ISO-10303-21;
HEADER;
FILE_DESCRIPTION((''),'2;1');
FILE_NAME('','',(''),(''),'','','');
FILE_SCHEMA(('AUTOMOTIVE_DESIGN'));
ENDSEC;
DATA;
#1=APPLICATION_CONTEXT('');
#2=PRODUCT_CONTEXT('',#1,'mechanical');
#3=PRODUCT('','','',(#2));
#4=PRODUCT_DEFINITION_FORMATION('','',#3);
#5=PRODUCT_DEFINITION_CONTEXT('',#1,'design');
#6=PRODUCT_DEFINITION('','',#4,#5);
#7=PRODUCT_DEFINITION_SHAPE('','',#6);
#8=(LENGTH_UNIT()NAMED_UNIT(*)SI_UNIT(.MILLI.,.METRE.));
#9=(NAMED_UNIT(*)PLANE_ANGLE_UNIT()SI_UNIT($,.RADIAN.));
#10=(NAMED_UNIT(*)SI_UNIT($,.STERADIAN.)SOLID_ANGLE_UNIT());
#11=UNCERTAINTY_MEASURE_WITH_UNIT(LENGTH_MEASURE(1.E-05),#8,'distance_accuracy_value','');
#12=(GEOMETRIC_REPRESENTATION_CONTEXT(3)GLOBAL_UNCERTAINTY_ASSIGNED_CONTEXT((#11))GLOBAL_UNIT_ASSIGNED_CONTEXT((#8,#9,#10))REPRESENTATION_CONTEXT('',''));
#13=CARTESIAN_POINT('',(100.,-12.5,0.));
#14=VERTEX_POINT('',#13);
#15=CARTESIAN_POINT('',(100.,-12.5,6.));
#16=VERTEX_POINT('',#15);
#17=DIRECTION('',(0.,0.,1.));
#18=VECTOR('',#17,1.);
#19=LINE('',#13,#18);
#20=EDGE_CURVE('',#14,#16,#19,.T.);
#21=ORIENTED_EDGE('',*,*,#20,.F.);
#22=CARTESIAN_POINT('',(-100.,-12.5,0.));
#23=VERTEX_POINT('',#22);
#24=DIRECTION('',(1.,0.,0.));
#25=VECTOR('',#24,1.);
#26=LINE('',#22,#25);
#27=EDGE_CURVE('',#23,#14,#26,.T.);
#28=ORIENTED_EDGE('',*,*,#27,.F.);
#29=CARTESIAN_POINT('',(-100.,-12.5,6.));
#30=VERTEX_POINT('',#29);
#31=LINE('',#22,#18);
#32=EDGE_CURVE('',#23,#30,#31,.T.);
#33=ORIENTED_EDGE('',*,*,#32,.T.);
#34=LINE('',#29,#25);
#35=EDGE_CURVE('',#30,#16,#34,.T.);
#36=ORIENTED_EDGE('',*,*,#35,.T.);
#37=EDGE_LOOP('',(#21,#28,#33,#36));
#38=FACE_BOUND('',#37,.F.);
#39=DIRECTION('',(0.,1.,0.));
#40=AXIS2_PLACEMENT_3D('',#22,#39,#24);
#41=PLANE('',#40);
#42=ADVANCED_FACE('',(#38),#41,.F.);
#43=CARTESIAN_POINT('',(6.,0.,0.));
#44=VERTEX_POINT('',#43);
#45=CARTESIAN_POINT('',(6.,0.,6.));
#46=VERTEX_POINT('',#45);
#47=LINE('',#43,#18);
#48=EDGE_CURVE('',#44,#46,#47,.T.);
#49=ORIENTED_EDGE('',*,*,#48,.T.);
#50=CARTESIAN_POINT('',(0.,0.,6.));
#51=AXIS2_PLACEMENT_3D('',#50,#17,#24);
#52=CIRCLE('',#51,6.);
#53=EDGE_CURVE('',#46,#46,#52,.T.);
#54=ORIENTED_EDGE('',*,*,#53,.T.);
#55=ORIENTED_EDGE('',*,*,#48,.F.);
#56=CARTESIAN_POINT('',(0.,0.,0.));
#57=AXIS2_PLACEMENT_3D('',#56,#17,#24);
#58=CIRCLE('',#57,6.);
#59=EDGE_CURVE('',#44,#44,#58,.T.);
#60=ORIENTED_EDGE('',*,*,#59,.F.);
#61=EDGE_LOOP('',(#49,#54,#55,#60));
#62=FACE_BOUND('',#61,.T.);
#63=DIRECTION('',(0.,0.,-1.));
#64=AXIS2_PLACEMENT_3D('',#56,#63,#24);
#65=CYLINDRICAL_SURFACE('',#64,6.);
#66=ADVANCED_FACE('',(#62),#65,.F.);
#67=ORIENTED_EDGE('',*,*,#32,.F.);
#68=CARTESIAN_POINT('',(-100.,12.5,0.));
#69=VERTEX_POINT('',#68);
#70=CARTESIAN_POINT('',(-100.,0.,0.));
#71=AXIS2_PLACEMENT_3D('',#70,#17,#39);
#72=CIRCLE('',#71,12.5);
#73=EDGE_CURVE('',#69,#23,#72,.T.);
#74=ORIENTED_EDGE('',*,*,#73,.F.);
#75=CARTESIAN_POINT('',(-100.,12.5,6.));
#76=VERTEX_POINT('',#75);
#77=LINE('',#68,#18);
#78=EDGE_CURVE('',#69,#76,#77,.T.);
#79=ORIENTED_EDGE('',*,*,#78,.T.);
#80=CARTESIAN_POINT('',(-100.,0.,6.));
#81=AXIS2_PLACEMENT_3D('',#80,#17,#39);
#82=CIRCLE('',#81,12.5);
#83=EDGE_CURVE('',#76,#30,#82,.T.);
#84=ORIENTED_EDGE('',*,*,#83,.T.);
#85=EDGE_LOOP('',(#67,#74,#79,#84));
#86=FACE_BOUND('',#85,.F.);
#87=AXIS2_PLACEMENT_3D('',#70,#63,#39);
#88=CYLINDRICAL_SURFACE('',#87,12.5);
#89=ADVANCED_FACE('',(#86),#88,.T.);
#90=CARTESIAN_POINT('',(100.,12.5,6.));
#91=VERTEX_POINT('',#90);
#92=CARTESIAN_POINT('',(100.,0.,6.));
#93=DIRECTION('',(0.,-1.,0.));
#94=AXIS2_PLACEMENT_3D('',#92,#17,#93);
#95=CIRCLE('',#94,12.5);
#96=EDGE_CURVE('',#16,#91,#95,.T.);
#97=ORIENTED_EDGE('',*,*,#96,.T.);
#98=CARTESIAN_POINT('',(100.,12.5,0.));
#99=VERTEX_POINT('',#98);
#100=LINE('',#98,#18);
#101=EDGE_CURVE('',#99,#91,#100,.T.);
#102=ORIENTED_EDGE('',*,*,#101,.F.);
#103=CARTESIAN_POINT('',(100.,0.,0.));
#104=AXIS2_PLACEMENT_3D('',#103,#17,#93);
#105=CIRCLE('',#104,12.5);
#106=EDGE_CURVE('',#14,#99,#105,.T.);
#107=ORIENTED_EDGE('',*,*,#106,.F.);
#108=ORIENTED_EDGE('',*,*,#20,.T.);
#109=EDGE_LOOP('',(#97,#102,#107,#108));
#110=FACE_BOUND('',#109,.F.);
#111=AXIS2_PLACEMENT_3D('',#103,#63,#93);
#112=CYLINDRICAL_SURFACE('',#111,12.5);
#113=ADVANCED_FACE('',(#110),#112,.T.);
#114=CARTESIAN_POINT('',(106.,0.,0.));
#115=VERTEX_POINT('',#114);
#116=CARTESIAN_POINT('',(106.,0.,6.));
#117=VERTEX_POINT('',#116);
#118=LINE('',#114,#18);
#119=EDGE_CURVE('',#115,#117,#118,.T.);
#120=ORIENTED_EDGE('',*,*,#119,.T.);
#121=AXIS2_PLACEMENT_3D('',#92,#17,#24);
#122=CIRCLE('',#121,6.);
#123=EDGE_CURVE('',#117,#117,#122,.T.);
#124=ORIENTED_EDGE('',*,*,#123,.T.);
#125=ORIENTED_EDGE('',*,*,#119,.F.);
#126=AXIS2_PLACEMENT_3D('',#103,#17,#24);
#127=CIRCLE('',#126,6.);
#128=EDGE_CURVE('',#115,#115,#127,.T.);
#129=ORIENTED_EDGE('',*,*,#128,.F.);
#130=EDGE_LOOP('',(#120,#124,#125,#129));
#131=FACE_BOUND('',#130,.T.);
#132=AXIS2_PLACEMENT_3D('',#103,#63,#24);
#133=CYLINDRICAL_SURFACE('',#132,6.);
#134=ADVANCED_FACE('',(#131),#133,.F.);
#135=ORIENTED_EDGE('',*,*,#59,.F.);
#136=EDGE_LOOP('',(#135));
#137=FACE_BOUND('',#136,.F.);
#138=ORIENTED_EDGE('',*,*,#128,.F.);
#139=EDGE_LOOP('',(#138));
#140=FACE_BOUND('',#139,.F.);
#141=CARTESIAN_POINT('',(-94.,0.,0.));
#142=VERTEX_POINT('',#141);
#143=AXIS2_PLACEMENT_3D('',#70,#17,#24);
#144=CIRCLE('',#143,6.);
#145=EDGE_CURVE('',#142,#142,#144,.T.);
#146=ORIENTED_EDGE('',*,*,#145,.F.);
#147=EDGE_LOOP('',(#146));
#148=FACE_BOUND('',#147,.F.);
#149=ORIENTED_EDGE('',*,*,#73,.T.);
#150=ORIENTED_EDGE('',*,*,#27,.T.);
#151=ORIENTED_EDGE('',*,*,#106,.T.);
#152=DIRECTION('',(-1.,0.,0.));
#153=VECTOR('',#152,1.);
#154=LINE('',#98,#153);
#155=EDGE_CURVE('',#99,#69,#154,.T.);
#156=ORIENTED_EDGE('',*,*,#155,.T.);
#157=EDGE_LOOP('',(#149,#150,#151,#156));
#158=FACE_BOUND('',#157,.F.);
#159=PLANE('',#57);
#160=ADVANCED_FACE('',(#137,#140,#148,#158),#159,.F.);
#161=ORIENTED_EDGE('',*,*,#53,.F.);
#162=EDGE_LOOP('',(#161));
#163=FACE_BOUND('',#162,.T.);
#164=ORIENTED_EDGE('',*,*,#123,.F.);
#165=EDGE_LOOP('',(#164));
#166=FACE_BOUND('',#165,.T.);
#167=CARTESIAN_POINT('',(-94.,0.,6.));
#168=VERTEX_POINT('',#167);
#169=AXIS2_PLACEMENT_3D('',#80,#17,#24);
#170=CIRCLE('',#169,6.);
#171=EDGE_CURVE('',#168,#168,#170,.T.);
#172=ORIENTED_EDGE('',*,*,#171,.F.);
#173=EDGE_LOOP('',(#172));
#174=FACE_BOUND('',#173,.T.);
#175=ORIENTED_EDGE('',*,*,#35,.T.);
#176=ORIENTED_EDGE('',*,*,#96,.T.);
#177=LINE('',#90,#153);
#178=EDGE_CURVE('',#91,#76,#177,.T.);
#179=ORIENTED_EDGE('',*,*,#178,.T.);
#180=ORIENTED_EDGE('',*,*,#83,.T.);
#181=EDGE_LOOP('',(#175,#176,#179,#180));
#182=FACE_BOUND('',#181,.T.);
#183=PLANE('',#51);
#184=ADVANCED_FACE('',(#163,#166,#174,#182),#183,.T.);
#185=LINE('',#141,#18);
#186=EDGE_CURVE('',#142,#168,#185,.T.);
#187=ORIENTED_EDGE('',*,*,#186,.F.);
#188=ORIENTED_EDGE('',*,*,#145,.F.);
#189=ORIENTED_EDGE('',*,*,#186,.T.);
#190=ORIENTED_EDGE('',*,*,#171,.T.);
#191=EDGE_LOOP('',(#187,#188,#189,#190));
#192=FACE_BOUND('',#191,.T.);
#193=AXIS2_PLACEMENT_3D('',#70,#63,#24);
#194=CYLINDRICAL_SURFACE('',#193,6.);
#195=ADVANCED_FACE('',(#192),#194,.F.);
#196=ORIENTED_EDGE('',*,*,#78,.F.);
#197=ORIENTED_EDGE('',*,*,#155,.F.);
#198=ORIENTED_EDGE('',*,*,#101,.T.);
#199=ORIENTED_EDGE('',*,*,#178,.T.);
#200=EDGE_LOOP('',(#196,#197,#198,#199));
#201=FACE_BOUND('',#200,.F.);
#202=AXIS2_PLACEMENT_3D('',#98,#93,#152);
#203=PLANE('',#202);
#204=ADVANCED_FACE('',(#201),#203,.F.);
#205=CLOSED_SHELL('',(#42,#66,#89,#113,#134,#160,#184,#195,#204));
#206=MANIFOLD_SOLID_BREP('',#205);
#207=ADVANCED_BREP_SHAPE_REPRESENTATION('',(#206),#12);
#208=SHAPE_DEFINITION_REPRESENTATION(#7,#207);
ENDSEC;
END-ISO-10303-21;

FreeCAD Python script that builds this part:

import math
import FreeCAD as App
import Part
import Sketcher

doc = App.newDocument("Part")
body = doc.addObject("PartDesign::Body", "Body")

sketch1 = body.newObject("Sketcher::SketchObject", "Sketch")
sketch1.AttachmentSupport = (doc.getObject("XY_Plane"), [""])
sketch1.MapMode = "FlatFace"
sketch1.addGeometry([
    Part.LineSegment(App.Vector(100, 12, 0), App.Vector(-100, 12, 0)),
    Part.ArcOfCircle(Part.Circle(App.Vector(-100, 0, 0), App.Vector(0, 0, 1), 12), math.radians(90), math.radians(270)),
    Part.LineSegment(App.Vector(-100, -12, 0), App.Vector(100, -12, 0)),
    Part.ArcOfCircle(Part.Circle(App.Vector(100, 0, 0), App.Vector(0, 0, 1), 12), math.radians(-90), math.radians(90)),
    Part.Circle(App.Vector(-100, 0, 0), App.Vector(0, 0, 1), 6),
    Part.Circle(App.Vector(0, 0, 0), App.Vector(0, 0, 1), 6),
    Part.Circle(App.Vector(100, 0, 0), App.Vector(0, 0, 1), 6),
], False)
sketch1.addConstraint([
    Sketcher.Constraint("Tangent", 0, 2, 1, 1),
    Sketcher.Constraint("Tangent", 1, 2, 2, 1),
    Sketcher.Constraint("Tangent", 2, 2, 3, 1),
    Sketcher.Constraint("Tangent", 3, 2, 0, 1),
    Sketcher.Constraint("Horizontal", 0),
    Sketcher.Constraint("Horizontal", 2),
    Sketcher.Constraint("Coincident", 5, 3, -1, 1),
    Sketcher.Constraint("Coincident", 4, 3, 1, 3),
    Sketcher.Constraint("Coincident", 6, 3, 3, 3),
    Sketcher.Constraint("Equal", 4, 5),
    Sketcher.Constraint("Equal", 5, 6),
    Sketcher.Constraint("Symmetric", 1, 3, 3, 3, -1, 1),
    Sketcher.Constraint("Diameter", 4, 12.0),
    Sketcher.Constraint("Radius", 1, 12.5),
    Sketcher.Constraint("DistanceX", 0, 2, 0, 1, 200.0),
])
pad1 = body.newObject("PartDesign::Pad", "Pad")
pad1.Profile = sketch1
pad1.Length = 6

doc.recompute()
